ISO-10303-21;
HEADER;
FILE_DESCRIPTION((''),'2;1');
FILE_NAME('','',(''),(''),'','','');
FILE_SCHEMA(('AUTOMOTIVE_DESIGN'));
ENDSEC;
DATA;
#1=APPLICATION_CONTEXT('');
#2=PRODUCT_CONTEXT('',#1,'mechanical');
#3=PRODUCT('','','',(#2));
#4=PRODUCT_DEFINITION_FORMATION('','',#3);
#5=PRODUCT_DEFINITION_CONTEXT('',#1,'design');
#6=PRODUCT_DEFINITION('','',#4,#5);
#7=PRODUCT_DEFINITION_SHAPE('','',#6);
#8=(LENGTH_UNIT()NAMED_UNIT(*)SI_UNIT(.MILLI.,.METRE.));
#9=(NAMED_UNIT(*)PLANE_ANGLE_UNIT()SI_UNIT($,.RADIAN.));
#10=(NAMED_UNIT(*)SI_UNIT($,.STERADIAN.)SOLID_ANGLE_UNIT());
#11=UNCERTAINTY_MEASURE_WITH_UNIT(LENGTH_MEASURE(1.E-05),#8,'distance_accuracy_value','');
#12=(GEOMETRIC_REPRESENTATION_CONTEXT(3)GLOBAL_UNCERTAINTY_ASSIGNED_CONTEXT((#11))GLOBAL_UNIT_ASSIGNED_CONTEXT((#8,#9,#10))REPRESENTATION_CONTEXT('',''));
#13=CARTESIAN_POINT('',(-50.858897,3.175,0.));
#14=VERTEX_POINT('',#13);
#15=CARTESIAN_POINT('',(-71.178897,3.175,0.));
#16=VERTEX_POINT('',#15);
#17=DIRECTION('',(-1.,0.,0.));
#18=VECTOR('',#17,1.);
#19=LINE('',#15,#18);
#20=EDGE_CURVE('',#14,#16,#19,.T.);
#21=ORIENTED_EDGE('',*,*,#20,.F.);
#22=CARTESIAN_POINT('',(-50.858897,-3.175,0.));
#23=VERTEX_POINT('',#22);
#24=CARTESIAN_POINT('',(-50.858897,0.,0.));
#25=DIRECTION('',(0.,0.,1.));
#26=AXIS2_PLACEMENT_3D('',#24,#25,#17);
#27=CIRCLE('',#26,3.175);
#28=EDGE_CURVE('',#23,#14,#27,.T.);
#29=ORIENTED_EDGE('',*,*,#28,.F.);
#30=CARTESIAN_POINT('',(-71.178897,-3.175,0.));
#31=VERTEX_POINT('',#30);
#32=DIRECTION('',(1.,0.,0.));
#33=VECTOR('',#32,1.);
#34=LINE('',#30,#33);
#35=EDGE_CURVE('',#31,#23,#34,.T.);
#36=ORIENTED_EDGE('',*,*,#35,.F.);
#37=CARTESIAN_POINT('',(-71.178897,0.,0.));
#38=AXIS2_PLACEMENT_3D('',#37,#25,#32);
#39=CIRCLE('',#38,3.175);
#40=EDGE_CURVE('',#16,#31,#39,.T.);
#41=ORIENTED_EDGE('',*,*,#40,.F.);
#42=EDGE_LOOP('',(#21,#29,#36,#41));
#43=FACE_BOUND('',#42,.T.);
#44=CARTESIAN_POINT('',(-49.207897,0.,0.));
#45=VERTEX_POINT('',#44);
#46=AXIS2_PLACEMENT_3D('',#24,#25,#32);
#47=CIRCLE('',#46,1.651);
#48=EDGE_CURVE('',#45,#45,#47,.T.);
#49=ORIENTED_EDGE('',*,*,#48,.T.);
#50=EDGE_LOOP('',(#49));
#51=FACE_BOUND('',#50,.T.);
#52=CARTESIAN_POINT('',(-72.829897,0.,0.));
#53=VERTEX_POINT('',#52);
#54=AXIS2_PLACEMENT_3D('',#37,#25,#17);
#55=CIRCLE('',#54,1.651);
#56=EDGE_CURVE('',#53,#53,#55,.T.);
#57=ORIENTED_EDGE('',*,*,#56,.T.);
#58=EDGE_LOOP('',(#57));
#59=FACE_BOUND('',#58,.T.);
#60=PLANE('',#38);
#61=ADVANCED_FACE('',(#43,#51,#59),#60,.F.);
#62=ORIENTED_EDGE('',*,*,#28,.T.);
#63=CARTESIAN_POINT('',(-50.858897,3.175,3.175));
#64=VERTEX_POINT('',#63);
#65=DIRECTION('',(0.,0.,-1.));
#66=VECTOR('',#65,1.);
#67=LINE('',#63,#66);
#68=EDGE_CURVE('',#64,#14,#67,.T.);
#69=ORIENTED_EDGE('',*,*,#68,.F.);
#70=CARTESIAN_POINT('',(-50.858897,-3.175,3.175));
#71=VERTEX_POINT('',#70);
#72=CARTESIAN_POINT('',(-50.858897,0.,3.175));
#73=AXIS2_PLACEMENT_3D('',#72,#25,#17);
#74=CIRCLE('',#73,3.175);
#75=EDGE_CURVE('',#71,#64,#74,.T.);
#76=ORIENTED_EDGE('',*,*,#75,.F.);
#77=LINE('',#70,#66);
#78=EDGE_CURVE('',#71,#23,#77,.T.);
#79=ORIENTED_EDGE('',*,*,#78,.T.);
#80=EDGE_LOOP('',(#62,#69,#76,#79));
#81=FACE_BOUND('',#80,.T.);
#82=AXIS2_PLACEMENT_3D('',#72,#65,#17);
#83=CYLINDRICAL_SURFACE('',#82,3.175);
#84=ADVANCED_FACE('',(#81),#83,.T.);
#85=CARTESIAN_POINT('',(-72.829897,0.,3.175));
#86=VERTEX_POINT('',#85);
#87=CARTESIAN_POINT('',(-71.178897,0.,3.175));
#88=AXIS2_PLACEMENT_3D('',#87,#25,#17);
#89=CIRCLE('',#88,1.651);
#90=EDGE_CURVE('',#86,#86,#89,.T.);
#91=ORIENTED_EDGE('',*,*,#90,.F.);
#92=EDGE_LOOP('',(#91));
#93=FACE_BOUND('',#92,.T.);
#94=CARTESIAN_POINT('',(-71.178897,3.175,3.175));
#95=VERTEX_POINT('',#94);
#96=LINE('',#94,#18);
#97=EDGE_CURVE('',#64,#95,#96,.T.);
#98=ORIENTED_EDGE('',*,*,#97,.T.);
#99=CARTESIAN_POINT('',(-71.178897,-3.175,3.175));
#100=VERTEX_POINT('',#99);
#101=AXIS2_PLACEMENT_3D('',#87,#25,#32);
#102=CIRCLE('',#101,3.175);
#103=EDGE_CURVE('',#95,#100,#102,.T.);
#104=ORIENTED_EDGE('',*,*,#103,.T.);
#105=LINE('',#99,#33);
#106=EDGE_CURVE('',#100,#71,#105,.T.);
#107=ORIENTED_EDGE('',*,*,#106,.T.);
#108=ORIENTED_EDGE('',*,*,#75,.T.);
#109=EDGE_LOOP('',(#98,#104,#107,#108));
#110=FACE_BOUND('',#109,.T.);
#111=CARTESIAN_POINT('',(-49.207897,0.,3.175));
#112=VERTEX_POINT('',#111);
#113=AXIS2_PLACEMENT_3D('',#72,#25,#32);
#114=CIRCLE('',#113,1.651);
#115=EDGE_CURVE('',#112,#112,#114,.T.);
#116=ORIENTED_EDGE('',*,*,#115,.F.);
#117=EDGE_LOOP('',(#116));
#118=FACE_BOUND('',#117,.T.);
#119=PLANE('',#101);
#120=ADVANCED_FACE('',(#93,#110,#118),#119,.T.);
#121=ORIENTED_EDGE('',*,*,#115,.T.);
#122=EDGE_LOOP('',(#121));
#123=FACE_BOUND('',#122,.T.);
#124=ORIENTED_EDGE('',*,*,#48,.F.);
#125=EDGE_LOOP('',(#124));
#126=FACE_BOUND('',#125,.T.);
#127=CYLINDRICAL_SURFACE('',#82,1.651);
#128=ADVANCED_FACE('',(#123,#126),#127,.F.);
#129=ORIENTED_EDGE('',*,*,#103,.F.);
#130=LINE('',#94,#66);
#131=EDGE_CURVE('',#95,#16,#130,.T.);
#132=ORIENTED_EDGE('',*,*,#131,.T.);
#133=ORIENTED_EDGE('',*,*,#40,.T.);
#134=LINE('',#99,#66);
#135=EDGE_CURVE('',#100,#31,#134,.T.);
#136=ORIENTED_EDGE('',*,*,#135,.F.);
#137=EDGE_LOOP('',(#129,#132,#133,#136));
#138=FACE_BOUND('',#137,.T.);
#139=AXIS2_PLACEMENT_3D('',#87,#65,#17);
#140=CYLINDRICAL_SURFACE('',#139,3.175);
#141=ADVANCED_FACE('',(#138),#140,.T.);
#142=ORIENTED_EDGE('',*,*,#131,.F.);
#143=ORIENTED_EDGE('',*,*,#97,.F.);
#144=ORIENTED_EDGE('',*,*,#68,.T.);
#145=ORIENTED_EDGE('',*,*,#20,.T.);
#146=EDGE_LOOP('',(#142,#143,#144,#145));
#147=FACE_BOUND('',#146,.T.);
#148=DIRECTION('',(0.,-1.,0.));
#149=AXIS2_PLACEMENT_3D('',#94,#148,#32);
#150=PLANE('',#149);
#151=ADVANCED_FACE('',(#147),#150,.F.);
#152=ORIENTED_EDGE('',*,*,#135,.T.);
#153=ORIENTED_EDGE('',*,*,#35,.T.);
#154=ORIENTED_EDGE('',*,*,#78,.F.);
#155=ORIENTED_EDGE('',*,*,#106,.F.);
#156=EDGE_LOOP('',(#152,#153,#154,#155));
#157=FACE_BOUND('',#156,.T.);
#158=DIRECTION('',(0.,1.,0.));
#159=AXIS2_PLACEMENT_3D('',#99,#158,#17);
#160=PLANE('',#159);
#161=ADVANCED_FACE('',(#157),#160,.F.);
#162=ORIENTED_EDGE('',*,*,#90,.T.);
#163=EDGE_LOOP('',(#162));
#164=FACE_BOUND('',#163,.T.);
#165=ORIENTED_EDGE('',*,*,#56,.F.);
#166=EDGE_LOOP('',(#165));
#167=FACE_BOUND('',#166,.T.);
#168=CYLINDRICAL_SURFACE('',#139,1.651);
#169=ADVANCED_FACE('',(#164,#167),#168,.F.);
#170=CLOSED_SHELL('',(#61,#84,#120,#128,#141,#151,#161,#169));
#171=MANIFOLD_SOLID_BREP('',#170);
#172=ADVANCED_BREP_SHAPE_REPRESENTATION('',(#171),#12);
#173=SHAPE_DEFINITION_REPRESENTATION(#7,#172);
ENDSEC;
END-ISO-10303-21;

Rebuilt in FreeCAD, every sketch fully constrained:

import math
import FreeCAD as App
import Part
import Sketcher
from FreeCAD import Vector
Q = App.Units.Quantity

doc = App.newDocument("Part")
body = doc.addObject("PartDesign::Body", "Body")

# Sketch on XY plane
sketch1 = body.newObject("Sketcher::SketchObject", "Sketch")
sketch1.AttachmentSupport = (doc.getObject("XY_Plane"), [""])
sketch1.MapMode = "FlatFace"
sketch1.addGeometry([
    Part.LineSegment(Vector(-50.9, 3.2, 0), Vector(-71.2, 3.2, 0)),  # 0
    Part.ArcOfCircle(Part.Circle(Vector(-71.2, 0, 0), Vector(0, 0, 1), 3.2), math.radians(90), math.radians(270)),  # 1
    Part.LineSegment(Vector(-71.2, -3.2, 0), Vector(-50.9, -3.2, 0)),  # 2
    Part.ArcOfCircle(Part.Circle(Vector(-50.9, 0, 0), Vector(0, 0, 1), 3.2), math.radians(-90), math.radians(90)),  # 3
    Part.Circle(Vector(-50.9, 0, 0), Vector(0, 0, 1), 1.7),  # 4
    Part.Circle(Vector(-71.2, 0, 0), Vector(0, 0, 1), 1.7),  # 5
], False)
sketch1.addConstraint([
    Sketcher.Constraint("Tangent", 0, 2, 1, 1),
    Sketcher.Constraint("Tangent", 1, 2, 2, 1),
    Sketcher.Constraint("Tangent", 2, 2, 3, 1),
    Sketcher.Constraint("Tangent", 3, 2, 0, 1),
    Sketcher.Constraint("Horizontal", 0),
    Sketcher.Constraint("Horizontal", 2),
    Sketcher.Constraint("Coincident", 4, 3, 3, 3),
    Sketcher.Constraint("Coincident", 5, 3, 1, 3),
    Sketcher.Constraint("Equal", 4, 5),
    Sketcher.Constraint("PointOnObject", 1, 3, -1),
    Sketcher.Constraint("Diameter", 4, Q("0.13 in")),
    Sketcher.Constraint("DistanceX", 0, 2, 0, 1, Q("0.8 in")),
    Sketcher.Constraint("Radius", 1, Q("0.125 in")),
    Sketcher.Constraint("DistanceX", 1, 3, -1, 1, 71.178897),
])
pad1 = body.newObject("PartDesign::Pad", "Pad")
pad1.Profile = sketch1
pad1.Length = Q("0.125 in")

doc.recompute()
